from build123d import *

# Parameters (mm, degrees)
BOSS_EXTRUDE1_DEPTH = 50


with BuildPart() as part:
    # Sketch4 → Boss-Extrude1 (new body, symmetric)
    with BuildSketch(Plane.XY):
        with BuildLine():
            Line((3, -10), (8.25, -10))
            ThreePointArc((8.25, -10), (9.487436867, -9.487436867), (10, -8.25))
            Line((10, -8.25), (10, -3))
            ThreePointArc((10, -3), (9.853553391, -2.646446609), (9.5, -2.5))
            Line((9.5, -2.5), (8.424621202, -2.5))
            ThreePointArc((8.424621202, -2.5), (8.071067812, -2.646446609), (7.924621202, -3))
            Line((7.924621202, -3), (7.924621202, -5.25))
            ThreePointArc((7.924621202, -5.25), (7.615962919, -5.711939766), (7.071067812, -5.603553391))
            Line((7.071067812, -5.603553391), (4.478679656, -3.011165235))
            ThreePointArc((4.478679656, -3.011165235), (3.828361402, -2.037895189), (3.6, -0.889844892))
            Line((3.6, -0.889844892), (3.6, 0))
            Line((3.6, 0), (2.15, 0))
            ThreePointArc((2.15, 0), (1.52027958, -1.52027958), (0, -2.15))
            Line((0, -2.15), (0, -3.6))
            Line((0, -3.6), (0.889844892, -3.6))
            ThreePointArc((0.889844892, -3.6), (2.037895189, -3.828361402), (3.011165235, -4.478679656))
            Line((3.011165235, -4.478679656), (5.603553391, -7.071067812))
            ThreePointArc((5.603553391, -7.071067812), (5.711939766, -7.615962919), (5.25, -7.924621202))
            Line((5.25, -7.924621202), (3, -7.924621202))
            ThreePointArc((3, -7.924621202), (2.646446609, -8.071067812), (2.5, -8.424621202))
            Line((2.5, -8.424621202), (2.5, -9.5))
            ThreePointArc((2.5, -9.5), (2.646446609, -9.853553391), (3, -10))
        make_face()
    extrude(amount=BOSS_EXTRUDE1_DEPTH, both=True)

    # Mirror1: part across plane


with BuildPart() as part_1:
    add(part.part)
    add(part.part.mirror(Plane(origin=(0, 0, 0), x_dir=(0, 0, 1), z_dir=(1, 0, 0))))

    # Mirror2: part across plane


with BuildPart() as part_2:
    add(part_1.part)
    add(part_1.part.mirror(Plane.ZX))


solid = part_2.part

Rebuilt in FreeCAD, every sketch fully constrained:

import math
import FreeCAD as App
import Part
import Sketcher
Q = App.Units.Quantity

doc = App.newDocument("Part")
body = doc.addObject("PartDesign::Body", "Body")

sketch1 = body.newObject("Sketcher::SketchObject", "Sketch")
sketch1.AttachmentSupport = (doc.getObject("XY_Plane"), [""])
sketch1.MapMode = "FlatFace"
sketch1.addGeometry([
    Part.LineSegment(App.Vector(3, -10, 0), App.Vector(8.25, -10, 0)),
    Part.ArcOfCircle(Part.Circle(App.Vector(8.25, -8.25, 0), App.Vector(0, 0, 1), 1.75), math.radians(-90), math.radians(0)),
    Part.LineSegment(App.Vector(10, -8.25, 0), App.Vector(10, -3, 0)),
    Part.ArcOfCircle(Part.Circle(App.Vector(9.5, -3, 0), App.Vector(0, 0, 1), 0.5), math.radians(0), math.radians(90)),
    Part.LineSegment(App.Vector(9.5, -2.5, 0), App.Vector(8.424621, -2.5, 0)),
    Part.ArcOfCircle(Part.Circle(App.Vector(8.424621, -3, 0), App.Vector(0, 0, 1), 0.5), math.radians(90), math.radians(180)),
    Part.LineSegment(App.Vector(7.924621, -3, 0), App.Vector(7.924621, -5.25, 0)),
    Part.ArcOfCircle(Part.Circle(App.Vector(7.424621, -5.25, 0), App.Vector(0, 0, 1), 0.5), math.radians(-135), math.radians(0)),
    Part.LineSegment(App.Vector(7.071068, -5.603553, 0), App.Vector(4.47868, -3.011165, 0)),
    Part.ArcOfCircle(Part.Circle(App.Vector(6.6, -0.889845, 0), App.Vector(0, 0, 1), 3), math.radians(180), math.radians(225)),
    Part.LineSegment(App.Vector(3.6, -0.889845, 0), App.Vector(3.6, 0, 0)),
    Part.LineSegment(App.Vector(3.6, 0, 0), App.Vector(2.15, 0, 0)),
    Part.ArcOfCircle(Part.Circle(App.Vector(0, 0, 0), App.Vector(0, 0, 1), 2.15), math.radians(-90), math.radians(0)),
    Part.LineSegment(App.Vector(0, -2.15, 0), App.Vector(0, -3.6, 0)),
    Part.LineSegment(App.Vector(0, -3.6, 0), App.Vector(0.889845, -3.6, 0)),
    Part.ArcOfCircle(Part.Circle(App.Vector(0.889845, -6.6, 0), App.Vector(0, 0, 1), 3), math.radians(45), math.radians(90)),
    Part.LineSegment(App.Vector(3.011165, -4.47868, 0), App.Vector(5.603553, -7.071068, 0)),
    Part.ArcOfCircle(Part.Circle(App.Vector(5.25, -7.424621, 0), App.Vector(0, 0, 1), 0.5), math.radians(-90), math.radians(45)),
    Part.LineSegment(App.Vector(5.25, -7.924621, 0), App.Vector(3, -7.924621, 0)),
    Part.ArcOfCircle(Part.Circle(App.Vector(3, -8.424621, 0), App.Vector(0, 0, 1), 0.5), math.radians(90), math.radians(180)),
    Part.LineSegment(App.Vector(2.5, -8.424621, 0), App.Vector(2.5, -9.5, 0)),
    Part.ArcOfCircle(Part.Circle(App.Vector(3, -9.5, 0), App.Vector(0, 0, 1), 0.5), math.radians(180), math.radians(270)),
], False)
sketch1.addConstraint([
    Sketcher.Constraint("Tangent", 0, 2, 1, 1),
    Sketcher.Constraint("Tangent", 1, 2, 2, 1),
    Sketcher.Constraint("Tangent", 2, 2, 3, 1),
    Sketcher.Constraint("Tangent", 3, 2, 4, 1),
    Sketcher.Constraint("Tangent", 4, 2, 5, 1),
    Sketcher.Constraint("Tangent", 5, 2, 6, 1),
    Sketcher.Constraint("Tangent", 6, 2, 7, 2),
    Sketcher.Constraint("Tangent", 7, 1, 8, 1),
    Sketcher.Constraint("Tangent", 8, 2, 9, 2),
    Sketcher.Constraint("Tangent", 9, 1, 10, 1),
    Sketcher.Constraint("Coincident", 10, 2, 11, 1),
    Sketcher.Constraint("Coincident", 11, 2, 12, 2),
    Sketcher.Constraint("Coincident", 12, 1, 13, 1),
    Sketcher.Constraint("Coincident", 13, 2, 14, 1),
    Sketcher.Constraint("Tangent", 14, 2, 15, 2),
    Sketcher.Constraint("Tangent", 15, 1, 16, 1),
    Sketcher.Constraint("Tangent", 16, 2, 17, 2),
    Sketcher.Constraint("Tangent", 17, 1, 18, 1),
    Sketcher.Constraint("Tangent", 18, 2, 19, 1),
    Sketcher.Constraint("Tangent", 19, 2, 20, 1),
    Sketcher.Constraint("Tangent", 20, 2, 21, 1),
    Sketcher.Constraint("Tangent", 21, 2, 0, 1),
    Sketcher.Constraint("Horizontal", 0),
    Sketcher.Constraint("Vertical", 2),
    Sketcher.Constraint("Horizontal", 4),
    Sketcher.Constraint("Vertical", 6),
    Sketcher.Constraint("Vertical", 10),
    Sketcher.Constraint("Horizontal", 11),
    Sketcher.Constraint("Vertical", 13),
    Sketcher.Constraint("Horizontal", 14),
    Sketcher.Constraint("Horizontal", 18),
    Sketcher.Constraint("Vertical", 20),
    Sketcher.Constraint("Coincident", 12, 3, -1, 1),
    Sketcher.Constraint("Equal", 3, 5),
    Sketcher.Constraint("Equal", 5, 7),
    Sketcher.Constraint("Equal", 9, 15),
    Sketcher.Constraint("Equal", 7, 17),
    Sketcher.Constraint("Equal", 17, 19),
    Sketcher.Constraint("Equal", 19, 21),
    Sketcher.Constraint("PointOnObject", 10, 2, -1),
    Sketcher.Constraint("PointOnObject", 12, 1, -2),
    Sketcher.Constraint("Parallel", 8, 16),
    Sketcher.Constraint("Equal", 0, 2),
    Sketcher.Constraint("Equal", 18, 6),
    Sketcher.Constraint("Equal", 14, 10),
    Sketcher.Constraint("Equal", 11, 13),
    Sketcher.Constraint("Equal", 4, 20),
    Sketcher.Constraint("Equal", 8, 16),
    Sketcher.Constraint("Radius", 9, Q("3 mm")),
    Sketcher.Constraint("Radius", 3, Q("0.5 mm")),
    Sketcher.Constraint("Radius", 1, Q("1.75 mm")),
    Sketcher.Constraint("Radius", 12, Q("2.15 mm")),
    Sketcher.Constraint("DistanceY", 3, 3, -1, 1, Q("3 mm")),
    Sketcher.Constraint("DistanceY", 0, 2, -1, 1, Q("10 mm")),
    Sketcher.Constraint("DistanceY", 1, 3, 7, 3, Q("3 mm")),
    Sketcher.Constraint("DistanceX", 11, 2, 11, 1, Q("1.45 mm")),
    Sketcher.Constraint("DistanceX", 4, 2, 4, 1, Q("1.075379 mm")),
])
pad1 = body.newObject("PartDesign::Pad", "Pad")
pad1.Profile = sketch1
pad1.Length = 100
pad1.Midplane = True
body2 = doc.addObject("PartDesign::Body", "Body001")
doc.recompute()

body2.BaseFeature = body
doc.recompute()

mirroring = doc.addObject("Part::Mirroring", "Mirroring")
mirroring.Source = body
mirroring.Base = App.Vector(0, 0, 0)
mirroring.Normal = App.Vector(1, 0, 0)
body3 = doc.addObject("PartDesign::Body", "Body002")
body3.BaseFeature = mirroring
boolean = body2.newObject("PartDesign::Boolean", "Boolean")
boolean.Type = "Fuse"
boolean.addObjects([body3])
doc.recompute()
body4 = doc.addObject("PartDesign::Body", "Body003")
doc.recompute()

body4.BaseFeature = body2
doc.recompute()

mirroring2 = doc.addObject("Part::Mirroring", "Mirroring001")
mirroring2.Source = body2
mirroring2.Base = App.Vector(0, 0, 0)
mirroring2.Normal = App.Vector(0, 1, 0)
body5 = doc.addObject("PartDesign::Body", "Body004")
body5.BaseFeature = mirroring2
boolean2 = body4.newObject("PartDesign::Boolean", "Boolean001")
boolean2.Type = "Fuse"
boolean2.addObjects([body5])
doc.recompute()
mirroring.Visibility = False
mirroring2.Visibility = False

doc.recompute()
